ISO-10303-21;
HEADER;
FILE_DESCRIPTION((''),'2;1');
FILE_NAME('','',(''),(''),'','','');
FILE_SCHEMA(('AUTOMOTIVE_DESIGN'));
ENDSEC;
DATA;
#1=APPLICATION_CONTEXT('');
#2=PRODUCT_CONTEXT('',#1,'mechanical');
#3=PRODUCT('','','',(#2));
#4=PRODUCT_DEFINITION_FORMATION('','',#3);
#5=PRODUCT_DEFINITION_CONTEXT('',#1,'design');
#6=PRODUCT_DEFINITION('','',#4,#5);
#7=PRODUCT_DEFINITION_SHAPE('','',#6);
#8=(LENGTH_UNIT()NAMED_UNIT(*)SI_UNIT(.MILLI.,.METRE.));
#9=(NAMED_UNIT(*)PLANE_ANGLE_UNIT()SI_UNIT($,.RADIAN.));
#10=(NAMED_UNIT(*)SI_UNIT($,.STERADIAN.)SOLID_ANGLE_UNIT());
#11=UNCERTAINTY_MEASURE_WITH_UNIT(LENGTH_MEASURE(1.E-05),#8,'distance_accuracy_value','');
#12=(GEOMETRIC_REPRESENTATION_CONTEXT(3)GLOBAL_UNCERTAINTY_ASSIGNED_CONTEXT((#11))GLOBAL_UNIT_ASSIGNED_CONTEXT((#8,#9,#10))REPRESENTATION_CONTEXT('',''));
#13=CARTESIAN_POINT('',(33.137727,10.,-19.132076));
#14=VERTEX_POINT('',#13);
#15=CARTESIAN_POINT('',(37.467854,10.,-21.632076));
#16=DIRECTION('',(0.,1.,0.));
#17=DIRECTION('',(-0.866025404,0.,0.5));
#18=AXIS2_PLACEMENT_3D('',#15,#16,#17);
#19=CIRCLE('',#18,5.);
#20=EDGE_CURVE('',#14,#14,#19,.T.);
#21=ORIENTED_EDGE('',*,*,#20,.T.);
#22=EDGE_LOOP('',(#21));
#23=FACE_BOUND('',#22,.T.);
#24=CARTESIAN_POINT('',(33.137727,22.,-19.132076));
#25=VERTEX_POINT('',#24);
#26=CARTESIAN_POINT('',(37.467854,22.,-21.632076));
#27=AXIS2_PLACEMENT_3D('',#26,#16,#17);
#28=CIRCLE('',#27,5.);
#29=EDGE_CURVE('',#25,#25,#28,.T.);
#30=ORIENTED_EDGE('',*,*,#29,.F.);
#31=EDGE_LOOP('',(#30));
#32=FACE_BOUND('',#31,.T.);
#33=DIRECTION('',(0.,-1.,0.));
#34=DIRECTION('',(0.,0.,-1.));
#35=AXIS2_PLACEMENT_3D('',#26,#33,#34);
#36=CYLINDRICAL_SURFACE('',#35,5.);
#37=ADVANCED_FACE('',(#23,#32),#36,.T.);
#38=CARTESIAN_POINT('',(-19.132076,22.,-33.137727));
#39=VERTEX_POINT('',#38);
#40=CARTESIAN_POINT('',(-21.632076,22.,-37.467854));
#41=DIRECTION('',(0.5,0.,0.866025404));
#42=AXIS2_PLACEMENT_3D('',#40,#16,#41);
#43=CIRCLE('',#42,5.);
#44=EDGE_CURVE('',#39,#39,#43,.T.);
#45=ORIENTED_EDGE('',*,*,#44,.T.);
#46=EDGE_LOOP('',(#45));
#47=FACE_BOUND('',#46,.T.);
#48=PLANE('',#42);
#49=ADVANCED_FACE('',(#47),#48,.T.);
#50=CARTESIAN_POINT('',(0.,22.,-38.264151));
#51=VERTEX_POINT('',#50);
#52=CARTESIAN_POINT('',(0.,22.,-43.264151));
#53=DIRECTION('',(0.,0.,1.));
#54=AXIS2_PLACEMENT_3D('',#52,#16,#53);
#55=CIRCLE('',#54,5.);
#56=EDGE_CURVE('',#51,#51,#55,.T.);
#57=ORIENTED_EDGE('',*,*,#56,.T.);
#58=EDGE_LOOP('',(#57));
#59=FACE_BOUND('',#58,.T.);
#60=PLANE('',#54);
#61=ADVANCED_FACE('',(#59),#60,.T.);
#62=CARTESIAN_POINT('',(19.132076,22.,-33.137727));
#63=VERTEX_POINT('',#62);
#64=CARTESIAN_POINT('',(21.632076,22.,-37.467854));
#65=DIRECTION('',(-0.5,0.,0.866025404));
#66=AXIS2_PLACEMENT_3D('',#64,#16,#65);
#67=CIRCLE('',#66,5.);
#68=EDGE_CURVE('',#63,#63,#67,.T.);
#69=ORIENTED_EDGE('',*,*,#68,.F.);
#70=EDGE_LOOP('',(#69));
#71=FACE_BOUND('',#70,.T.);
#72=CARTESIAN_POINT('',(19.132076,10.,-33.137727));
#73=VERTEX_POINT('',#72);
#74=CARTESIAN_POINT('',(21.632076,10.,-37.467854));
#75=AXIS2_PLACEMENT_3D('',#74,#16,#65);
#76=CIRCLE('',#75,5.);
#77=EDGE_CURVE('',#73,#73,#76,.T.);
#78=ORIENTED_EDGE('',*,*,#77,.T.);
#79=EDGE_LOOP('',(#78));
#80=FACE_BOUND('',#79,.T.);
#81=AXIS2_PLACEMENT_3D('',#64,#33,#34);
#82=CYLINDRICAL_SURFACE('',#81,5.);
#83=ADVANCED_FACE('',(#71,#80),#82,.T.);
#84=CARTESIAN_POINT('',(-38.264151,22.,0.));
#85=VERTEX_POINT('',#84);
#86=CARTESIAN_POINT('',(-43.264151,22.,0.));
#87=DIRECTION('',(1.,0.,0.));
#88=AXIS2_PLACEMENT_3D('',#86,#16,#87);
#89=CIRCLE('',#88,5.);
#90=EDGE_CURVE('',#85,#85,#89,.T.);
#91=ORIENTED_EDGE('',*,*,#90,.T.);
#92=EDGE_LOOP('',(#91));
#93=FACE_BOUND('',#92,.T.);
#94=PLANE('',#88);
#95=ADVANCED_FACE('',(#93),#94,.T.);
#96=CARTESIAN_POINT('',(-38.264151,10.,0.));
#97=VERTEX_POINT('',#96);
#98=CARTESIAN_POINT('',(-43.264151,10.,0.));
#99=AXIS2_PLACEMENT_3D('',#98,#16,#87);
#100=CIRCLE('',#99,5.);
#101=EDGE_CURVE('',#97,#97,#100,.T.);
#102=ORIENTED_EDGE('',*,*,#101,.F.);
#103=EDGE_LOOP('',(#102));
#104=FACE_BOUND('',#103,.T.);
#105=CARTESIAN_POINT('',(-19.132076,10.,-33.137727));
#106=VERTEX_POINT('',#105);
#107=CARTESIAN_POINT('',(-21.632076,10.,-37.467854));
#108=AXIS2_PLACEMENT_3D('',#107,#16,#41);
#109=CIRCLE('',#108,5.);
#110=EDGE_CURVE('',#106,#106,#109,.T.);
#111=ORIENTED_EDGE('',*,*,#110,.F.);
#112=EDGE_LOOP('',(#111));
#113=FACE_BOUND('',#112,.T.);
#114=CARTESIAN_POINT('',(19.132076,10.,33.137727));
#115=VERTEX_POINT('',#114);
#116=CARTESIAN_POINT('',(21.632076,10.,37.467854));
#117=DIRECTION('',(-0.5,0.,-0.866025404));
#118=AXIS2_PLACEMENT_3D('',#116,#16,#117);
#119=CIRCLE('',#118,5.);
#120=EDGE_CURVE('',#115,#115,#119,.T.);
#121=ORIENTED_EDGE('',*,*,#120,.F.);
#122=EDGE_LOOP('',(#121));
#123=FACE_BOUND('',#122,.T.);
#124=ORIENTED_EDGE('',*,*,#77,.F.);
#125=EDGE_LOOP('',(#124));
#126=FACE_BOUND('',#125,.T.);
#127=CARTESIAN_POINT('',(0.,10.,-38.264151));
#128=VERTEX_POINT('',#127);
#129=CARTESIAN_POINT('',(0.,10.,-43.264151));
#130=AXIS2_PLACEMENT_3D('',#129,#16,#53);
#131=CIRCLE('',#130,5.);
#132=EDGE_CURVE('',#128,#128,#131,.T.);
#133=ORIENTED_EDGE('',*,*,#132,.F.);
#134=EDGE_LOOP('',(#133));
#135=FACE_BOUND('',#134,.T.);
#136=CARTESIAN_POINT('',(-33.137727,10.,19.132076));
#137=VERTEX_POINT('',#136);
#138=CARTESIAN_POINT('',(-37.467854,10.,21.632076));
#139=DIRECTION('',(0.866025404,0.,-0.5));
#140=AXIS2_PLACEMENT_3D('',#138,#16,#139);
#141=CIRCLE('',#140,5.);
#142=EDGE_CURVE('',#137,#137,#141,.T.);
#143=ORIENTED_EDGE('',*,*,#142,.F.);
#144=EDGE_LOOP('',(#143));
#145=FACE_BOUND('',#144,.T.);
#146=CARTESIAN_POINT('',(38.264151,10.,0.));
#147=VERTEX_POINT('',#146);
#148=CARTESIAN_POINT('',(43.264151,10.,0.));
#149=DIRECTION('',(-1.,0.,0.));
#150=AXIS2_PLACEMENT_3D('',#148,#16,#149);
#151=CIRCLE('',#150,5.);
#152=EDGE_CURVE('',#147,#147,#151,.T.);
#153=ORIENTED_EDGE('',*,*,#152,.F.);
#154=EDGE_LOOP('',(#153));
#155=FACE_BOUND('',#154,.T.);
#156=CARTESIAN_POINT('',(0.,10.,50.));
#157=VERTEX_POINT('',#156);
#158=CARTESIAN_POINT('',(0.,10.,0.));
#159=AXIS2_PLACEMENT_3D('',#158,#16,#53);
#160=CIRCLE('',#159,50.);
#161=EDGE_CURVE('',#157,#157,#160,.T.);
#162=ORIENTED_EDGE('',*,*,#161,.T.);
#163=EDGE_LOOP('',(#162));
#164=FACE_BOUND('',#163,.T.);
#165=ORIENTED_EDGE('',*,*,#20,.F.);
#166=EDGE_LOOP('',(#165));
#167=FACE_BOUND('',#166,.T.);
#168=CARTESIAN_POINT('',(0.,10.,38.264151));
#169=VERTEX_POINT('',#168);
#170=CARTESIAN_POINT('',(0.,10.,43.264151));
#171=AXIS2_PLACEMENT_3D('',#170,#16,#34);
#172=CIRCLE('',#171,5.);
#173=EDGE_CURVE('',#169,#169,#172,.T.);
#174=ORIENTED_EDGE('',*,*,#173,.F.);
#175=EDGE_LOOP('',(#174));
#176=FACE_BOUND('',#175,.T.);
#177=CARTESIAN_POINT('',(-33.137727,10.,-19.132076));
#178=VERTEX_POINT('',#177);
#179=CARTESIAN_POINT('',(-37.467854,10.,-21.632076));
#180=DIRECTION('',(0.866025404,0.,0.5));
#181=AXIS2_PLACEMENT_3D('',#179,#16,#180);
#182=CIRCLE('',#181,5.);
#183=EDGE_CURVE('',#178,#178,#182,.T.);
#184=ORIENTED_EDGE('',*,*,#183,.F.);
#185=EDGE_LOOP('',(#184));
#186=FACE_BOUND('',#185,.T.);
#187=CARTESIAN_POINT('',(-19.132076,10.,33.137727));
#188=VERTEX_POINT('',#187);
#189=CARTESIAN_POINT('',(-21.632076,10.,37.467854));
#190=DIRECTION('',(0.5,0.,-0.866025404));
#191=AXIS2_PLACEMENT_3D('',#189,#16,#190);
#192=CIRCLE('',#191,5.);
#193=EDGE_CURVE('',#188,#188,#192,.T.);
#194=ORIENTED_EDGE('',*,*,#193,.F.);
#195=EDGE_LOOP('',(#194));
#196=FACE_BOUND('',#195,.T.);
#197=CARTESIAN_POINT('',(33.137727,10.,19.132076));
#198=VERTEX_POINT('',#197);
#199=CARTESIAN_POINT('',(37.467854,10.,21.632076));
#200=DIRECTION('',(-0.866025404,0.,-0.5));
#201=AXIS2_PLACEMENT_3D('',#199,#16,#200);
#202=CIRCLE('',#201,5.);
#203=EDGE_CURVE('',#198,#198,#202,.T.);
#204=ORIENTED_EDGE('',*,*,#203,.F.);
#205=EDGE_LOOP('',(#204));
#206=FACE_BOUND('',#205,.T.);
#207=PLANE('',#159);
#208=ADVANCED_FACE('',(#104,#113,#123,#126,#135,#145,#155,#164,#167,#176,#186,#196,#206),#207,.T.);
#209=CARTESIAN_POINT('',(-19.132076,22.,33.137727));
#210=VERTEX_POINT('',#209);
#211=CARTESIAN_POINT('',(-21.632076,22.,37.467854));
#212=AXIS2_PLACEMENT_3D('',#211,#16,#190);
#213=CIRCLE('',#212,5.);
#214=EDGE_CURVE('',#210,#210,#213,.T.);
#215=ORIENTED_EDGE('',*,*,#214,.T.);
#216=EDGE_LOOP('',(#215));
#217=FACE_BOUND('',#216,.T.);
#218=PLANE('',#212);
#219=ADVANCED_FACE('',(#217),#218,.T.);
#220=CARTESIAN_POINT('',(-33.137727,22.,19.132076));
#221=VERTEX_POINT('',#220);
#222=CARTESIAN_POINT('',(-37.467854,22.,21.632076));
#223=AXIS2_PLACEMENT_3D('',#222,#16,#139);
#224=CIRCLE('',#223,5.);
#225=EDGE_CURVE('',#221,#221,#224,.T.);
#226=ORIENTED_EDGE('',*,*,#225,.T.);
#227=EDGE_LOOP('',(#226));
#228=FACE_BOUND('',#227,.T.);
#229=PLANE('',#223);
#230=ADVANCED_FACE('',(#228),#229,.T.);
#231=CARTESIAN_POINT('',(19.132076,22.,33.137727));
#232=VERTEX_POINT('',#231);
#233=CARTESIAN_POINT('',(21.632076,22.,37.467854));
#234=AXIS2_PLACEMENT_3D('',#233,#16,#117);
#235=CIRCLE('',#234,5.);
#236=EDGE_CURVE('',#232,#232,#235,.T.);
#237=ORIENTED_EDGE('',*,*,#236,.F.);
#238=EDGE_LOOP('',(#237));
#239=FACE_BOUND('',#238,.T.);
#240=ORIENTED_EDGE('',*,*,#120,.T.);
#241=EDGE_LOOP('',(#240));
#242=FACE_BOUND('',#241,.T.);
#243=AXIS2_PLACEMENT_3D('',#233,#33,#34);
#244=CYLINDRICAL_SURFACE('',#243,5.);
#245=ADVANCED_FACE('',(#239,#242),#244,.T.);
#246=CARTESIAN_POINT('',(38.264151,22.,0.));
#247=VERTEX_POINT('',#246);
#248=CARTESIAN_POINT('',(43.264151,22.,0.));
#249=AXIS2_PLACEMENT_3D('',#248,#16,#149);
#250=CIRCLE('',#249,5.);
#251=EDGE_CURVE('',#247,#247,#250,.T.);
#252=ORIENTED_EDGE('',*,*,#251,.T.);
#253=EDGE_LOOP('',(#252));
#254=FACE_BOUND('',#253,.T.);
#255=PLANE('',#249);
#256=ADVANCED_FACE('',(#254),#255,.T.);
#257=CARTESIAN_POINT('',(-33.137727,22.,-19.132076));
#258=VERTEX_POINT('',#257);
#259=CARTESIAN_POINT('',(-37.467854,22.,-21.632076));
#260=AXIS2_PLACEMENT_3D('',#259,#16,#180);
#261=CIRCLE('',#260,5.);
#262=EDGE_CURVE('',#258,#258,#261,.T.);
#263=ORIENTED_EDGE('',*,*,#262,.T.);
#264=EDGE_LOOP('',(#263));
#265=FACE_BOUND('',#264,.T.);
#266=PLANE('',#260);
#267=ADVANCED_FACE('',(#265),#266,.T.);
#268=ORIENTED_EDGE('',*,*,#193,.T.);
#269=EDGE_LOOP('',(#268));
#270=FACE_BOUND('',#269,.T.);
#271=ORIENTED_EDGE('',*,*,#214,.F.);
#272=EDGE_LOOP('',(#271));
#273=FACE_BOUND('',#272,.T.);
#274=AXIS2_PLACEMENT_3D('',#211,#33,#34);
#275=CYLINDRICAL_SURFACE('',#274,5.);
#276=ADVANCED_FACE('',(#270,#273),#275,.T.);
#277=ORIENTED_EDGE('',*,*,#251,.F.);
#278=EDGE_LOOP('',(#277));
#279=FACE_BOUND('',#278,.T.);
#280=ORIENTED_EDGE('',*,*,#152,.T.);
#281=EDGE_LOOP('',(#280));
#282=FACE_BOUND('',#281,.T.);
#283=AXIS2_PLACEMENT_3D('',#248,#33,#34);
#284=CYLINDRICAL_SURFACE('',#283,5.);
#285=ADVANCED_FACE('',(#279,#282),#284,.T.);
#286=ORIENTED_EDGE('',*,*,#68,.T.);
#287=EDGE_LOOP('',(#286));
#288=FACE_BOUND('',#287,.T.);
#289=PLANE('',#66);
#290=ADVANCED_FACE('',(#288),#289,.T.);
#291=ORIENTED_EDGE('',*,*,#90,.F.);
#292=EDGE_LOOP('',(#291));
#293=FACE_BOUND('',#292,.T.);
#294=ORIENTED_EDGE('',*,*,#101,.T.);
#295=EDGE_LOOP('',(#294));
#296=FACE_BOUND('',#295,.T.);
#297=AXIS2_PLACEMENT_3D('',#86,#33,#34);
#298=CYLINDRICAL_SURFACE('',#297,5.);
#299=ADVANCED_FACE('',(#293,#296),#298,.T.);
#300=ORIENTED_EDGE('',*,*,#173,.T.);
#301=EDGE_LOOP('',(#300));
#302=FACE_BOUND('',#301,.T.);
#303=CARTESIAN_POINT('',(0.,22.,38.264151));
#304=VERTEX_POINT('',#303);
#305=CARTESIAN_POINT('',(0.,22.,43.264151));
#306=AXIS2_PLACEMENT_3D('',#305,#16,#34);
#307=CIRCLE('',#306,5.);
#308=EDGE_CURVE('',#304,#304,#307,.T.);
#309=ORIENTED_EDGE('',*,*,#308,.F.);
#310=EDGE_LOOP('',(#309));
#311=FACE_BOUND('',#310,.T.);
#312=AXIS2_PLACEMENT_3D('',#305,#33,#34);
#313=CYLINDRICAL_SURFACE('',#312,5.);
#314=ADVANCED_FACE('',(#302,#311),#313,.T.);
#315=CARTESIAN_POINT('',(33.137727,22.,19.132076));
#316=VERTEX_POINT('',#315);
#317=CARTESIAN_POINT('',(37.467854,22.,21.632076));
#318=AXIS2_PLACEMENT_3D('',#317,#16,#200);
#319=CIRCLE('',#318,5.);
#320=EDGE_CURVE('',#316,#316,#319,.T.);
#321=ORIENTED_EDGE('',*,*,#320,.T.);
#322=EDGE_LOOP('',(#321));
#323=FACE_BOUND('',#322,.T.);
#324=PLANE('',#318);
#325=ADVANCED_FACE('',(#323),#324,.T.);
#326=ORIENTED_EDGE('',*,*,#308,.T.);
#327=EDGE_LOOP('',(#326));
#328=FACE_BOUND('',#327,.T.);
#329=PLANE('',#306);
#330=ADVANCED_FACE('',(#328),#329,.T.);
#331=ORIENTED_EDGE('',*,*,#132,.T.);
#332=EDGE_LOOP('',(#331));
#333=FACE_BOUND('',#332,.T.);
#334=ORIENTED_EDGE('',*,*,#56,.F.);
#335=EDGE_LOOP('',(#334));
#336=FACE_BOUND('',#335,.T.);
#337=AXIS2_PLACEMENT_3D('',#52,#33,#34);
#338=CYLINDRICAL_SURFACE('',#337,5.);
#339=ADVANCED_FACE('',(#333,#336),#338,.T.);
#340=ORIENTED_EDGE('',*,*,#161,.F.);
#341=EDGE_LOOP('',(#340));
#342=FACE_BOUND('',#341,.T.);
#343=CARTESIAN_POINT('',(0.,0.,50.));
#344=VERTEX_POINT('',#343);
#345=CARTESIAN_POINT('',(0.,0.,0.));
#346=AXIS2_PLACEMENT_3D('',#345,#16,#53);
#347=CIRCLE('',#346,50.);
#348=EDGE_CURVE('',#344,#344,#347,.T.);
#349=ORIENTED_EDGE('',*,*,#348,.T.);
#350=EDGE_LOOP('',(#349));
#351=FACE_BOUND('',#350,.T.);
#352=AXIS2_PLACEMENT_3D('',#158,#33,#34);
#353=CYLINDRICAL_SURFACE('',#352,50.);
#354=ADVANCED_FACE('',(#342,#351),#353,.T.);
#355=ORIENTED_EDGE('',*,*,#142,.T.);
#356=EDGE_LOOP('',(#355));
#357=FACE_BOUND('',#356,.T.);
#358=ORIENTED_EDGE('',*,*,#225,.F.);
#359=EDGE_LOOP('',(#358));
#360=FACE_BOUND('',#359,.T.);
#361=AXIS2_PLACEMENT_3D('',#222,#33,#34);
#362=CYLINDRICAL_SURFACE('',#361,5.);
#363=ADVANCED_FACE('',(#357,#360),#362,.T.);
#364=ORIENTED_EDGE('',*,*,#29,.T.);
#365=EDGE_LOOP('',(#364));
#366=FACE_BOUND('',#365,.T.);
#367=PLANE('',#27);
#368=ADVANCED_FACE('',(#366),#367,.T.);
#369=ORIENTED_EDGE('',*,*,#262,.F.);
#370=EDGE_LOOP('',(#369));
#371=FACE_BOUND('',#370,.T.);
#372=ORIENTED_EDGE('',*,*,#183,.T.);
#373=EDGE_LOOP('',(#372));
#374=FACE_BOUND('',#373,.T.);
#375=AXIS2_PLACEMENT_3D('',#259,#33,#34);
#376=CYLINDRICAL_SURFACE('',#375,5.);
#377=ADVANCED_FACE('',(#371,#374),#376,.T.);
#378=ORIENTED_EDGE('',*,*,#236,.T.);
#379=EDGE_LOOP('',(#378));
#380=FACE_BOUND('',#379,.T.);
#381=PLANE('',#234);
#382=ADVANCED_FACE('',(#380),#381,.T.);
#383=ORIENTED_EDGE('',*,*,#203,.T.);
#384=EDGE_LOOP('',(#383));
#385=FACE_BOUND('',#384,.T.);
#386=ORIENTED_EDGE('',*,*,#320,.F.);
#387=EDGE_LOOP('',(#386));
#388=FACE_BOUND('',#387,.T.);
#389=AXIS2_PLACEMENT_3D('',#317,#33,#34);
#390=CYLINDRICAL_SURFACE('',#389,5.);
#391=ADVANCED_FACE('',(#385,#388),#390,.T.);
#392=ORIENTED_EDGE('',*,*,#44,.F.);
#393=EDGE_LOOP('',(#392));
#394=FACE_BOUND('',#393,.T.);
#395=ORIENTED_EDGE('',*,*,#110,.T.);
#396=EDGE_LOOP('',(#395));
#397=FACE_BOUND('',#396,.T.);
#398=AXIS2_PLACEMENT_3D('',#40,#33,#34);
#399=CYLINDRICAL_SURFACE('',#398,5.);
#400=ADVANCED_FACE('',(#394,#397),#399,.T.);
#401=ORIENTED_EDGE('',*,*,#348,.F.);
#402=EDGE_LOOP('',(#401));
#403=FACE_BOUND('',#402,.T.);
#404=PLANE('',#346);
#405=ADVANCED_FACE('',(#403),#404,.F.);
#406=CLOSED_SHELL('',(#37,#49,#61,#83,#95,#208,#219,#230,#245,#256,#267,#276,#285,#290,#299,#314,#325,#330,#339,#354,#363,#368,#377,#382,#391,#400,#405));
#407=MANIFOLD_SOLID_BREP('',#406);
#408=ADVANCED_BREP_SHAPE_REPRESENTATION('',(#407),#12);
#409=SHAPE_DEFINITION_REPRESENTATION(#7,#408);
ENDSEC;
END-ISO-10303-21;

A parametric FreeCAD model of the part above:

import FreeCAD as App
import Part
import Sketcher

V = App.Vector
Q = App.Units.Quantity

doc = App.newDocument("Part")
body = doc.addObject("PartDesign::Body", "Body")

# Sketch on XZ plane
sketch1 = body.newObject("Sketcher::SketchObject", "Sketch")
sketch1.AttachmentSupport = (doc.getObject("XZ_Plane"), [""])
sketch1.MapMode = "FlatFace"
sketch1.addGeometry(Part.Circle(V(0, 0, 0), V(0, 0, 1), 50), False)
sketch1.addConstraint([
    Sketcher.Constraint("Coincident", 0, 3, -1, 1),
    Sketcher.Constraint("Diameter", 0, Q("100 mm")),
])
pad1 = body.newObject("PartDesign::Pad", "Pad")
pad1.Profile = sketch1
pad1.Length = 10
pad1.Reversed = True

# Sketch on XZ plane
sketch2 = body.newObject("Sketcher::SketchObject", "Sketch001")
sketch2.AttachmentSupport = (doc.getObject("XZ_Plane"), [""])
sketch2.MapMode = "FlatFace"
sketch2.AttachmentOffset = App.Placement(V(0, 0, -10), App.Rotation())
sketch2.addGeometry(Part.Circle(V(0, -43, 0), V(0, 0, 1), 5), False)
sketch2.addConstraint([
    Sketcher.Constraint("PointOnObject", 0, 3, -2),
    Sketcher.Constraint("Diameter", 0, Q("10 mm")),
    Sketcher.Constraint("DistanceY", 0, 3, -1, 1, Q("43.264151 mm")),
])
pad2 = body.newObject("PartDesign::Pad", "Pad001")
pad2.Profile = sketch2
pad2.Length = 12
pad2.Reversed = True
doc.recompute()

polarpattern = body.newObject("PartDesign::PolarPattern", "PolarPattern")
polarpattern.Originals = [pad2]
polarpattern.Axis = (doc.getObject("Y_Axis"), [""])
polarpattern.Angle = 360
polarpattern.Occurrences = 12
body.Tip = polarpattern

doc.recompute()
